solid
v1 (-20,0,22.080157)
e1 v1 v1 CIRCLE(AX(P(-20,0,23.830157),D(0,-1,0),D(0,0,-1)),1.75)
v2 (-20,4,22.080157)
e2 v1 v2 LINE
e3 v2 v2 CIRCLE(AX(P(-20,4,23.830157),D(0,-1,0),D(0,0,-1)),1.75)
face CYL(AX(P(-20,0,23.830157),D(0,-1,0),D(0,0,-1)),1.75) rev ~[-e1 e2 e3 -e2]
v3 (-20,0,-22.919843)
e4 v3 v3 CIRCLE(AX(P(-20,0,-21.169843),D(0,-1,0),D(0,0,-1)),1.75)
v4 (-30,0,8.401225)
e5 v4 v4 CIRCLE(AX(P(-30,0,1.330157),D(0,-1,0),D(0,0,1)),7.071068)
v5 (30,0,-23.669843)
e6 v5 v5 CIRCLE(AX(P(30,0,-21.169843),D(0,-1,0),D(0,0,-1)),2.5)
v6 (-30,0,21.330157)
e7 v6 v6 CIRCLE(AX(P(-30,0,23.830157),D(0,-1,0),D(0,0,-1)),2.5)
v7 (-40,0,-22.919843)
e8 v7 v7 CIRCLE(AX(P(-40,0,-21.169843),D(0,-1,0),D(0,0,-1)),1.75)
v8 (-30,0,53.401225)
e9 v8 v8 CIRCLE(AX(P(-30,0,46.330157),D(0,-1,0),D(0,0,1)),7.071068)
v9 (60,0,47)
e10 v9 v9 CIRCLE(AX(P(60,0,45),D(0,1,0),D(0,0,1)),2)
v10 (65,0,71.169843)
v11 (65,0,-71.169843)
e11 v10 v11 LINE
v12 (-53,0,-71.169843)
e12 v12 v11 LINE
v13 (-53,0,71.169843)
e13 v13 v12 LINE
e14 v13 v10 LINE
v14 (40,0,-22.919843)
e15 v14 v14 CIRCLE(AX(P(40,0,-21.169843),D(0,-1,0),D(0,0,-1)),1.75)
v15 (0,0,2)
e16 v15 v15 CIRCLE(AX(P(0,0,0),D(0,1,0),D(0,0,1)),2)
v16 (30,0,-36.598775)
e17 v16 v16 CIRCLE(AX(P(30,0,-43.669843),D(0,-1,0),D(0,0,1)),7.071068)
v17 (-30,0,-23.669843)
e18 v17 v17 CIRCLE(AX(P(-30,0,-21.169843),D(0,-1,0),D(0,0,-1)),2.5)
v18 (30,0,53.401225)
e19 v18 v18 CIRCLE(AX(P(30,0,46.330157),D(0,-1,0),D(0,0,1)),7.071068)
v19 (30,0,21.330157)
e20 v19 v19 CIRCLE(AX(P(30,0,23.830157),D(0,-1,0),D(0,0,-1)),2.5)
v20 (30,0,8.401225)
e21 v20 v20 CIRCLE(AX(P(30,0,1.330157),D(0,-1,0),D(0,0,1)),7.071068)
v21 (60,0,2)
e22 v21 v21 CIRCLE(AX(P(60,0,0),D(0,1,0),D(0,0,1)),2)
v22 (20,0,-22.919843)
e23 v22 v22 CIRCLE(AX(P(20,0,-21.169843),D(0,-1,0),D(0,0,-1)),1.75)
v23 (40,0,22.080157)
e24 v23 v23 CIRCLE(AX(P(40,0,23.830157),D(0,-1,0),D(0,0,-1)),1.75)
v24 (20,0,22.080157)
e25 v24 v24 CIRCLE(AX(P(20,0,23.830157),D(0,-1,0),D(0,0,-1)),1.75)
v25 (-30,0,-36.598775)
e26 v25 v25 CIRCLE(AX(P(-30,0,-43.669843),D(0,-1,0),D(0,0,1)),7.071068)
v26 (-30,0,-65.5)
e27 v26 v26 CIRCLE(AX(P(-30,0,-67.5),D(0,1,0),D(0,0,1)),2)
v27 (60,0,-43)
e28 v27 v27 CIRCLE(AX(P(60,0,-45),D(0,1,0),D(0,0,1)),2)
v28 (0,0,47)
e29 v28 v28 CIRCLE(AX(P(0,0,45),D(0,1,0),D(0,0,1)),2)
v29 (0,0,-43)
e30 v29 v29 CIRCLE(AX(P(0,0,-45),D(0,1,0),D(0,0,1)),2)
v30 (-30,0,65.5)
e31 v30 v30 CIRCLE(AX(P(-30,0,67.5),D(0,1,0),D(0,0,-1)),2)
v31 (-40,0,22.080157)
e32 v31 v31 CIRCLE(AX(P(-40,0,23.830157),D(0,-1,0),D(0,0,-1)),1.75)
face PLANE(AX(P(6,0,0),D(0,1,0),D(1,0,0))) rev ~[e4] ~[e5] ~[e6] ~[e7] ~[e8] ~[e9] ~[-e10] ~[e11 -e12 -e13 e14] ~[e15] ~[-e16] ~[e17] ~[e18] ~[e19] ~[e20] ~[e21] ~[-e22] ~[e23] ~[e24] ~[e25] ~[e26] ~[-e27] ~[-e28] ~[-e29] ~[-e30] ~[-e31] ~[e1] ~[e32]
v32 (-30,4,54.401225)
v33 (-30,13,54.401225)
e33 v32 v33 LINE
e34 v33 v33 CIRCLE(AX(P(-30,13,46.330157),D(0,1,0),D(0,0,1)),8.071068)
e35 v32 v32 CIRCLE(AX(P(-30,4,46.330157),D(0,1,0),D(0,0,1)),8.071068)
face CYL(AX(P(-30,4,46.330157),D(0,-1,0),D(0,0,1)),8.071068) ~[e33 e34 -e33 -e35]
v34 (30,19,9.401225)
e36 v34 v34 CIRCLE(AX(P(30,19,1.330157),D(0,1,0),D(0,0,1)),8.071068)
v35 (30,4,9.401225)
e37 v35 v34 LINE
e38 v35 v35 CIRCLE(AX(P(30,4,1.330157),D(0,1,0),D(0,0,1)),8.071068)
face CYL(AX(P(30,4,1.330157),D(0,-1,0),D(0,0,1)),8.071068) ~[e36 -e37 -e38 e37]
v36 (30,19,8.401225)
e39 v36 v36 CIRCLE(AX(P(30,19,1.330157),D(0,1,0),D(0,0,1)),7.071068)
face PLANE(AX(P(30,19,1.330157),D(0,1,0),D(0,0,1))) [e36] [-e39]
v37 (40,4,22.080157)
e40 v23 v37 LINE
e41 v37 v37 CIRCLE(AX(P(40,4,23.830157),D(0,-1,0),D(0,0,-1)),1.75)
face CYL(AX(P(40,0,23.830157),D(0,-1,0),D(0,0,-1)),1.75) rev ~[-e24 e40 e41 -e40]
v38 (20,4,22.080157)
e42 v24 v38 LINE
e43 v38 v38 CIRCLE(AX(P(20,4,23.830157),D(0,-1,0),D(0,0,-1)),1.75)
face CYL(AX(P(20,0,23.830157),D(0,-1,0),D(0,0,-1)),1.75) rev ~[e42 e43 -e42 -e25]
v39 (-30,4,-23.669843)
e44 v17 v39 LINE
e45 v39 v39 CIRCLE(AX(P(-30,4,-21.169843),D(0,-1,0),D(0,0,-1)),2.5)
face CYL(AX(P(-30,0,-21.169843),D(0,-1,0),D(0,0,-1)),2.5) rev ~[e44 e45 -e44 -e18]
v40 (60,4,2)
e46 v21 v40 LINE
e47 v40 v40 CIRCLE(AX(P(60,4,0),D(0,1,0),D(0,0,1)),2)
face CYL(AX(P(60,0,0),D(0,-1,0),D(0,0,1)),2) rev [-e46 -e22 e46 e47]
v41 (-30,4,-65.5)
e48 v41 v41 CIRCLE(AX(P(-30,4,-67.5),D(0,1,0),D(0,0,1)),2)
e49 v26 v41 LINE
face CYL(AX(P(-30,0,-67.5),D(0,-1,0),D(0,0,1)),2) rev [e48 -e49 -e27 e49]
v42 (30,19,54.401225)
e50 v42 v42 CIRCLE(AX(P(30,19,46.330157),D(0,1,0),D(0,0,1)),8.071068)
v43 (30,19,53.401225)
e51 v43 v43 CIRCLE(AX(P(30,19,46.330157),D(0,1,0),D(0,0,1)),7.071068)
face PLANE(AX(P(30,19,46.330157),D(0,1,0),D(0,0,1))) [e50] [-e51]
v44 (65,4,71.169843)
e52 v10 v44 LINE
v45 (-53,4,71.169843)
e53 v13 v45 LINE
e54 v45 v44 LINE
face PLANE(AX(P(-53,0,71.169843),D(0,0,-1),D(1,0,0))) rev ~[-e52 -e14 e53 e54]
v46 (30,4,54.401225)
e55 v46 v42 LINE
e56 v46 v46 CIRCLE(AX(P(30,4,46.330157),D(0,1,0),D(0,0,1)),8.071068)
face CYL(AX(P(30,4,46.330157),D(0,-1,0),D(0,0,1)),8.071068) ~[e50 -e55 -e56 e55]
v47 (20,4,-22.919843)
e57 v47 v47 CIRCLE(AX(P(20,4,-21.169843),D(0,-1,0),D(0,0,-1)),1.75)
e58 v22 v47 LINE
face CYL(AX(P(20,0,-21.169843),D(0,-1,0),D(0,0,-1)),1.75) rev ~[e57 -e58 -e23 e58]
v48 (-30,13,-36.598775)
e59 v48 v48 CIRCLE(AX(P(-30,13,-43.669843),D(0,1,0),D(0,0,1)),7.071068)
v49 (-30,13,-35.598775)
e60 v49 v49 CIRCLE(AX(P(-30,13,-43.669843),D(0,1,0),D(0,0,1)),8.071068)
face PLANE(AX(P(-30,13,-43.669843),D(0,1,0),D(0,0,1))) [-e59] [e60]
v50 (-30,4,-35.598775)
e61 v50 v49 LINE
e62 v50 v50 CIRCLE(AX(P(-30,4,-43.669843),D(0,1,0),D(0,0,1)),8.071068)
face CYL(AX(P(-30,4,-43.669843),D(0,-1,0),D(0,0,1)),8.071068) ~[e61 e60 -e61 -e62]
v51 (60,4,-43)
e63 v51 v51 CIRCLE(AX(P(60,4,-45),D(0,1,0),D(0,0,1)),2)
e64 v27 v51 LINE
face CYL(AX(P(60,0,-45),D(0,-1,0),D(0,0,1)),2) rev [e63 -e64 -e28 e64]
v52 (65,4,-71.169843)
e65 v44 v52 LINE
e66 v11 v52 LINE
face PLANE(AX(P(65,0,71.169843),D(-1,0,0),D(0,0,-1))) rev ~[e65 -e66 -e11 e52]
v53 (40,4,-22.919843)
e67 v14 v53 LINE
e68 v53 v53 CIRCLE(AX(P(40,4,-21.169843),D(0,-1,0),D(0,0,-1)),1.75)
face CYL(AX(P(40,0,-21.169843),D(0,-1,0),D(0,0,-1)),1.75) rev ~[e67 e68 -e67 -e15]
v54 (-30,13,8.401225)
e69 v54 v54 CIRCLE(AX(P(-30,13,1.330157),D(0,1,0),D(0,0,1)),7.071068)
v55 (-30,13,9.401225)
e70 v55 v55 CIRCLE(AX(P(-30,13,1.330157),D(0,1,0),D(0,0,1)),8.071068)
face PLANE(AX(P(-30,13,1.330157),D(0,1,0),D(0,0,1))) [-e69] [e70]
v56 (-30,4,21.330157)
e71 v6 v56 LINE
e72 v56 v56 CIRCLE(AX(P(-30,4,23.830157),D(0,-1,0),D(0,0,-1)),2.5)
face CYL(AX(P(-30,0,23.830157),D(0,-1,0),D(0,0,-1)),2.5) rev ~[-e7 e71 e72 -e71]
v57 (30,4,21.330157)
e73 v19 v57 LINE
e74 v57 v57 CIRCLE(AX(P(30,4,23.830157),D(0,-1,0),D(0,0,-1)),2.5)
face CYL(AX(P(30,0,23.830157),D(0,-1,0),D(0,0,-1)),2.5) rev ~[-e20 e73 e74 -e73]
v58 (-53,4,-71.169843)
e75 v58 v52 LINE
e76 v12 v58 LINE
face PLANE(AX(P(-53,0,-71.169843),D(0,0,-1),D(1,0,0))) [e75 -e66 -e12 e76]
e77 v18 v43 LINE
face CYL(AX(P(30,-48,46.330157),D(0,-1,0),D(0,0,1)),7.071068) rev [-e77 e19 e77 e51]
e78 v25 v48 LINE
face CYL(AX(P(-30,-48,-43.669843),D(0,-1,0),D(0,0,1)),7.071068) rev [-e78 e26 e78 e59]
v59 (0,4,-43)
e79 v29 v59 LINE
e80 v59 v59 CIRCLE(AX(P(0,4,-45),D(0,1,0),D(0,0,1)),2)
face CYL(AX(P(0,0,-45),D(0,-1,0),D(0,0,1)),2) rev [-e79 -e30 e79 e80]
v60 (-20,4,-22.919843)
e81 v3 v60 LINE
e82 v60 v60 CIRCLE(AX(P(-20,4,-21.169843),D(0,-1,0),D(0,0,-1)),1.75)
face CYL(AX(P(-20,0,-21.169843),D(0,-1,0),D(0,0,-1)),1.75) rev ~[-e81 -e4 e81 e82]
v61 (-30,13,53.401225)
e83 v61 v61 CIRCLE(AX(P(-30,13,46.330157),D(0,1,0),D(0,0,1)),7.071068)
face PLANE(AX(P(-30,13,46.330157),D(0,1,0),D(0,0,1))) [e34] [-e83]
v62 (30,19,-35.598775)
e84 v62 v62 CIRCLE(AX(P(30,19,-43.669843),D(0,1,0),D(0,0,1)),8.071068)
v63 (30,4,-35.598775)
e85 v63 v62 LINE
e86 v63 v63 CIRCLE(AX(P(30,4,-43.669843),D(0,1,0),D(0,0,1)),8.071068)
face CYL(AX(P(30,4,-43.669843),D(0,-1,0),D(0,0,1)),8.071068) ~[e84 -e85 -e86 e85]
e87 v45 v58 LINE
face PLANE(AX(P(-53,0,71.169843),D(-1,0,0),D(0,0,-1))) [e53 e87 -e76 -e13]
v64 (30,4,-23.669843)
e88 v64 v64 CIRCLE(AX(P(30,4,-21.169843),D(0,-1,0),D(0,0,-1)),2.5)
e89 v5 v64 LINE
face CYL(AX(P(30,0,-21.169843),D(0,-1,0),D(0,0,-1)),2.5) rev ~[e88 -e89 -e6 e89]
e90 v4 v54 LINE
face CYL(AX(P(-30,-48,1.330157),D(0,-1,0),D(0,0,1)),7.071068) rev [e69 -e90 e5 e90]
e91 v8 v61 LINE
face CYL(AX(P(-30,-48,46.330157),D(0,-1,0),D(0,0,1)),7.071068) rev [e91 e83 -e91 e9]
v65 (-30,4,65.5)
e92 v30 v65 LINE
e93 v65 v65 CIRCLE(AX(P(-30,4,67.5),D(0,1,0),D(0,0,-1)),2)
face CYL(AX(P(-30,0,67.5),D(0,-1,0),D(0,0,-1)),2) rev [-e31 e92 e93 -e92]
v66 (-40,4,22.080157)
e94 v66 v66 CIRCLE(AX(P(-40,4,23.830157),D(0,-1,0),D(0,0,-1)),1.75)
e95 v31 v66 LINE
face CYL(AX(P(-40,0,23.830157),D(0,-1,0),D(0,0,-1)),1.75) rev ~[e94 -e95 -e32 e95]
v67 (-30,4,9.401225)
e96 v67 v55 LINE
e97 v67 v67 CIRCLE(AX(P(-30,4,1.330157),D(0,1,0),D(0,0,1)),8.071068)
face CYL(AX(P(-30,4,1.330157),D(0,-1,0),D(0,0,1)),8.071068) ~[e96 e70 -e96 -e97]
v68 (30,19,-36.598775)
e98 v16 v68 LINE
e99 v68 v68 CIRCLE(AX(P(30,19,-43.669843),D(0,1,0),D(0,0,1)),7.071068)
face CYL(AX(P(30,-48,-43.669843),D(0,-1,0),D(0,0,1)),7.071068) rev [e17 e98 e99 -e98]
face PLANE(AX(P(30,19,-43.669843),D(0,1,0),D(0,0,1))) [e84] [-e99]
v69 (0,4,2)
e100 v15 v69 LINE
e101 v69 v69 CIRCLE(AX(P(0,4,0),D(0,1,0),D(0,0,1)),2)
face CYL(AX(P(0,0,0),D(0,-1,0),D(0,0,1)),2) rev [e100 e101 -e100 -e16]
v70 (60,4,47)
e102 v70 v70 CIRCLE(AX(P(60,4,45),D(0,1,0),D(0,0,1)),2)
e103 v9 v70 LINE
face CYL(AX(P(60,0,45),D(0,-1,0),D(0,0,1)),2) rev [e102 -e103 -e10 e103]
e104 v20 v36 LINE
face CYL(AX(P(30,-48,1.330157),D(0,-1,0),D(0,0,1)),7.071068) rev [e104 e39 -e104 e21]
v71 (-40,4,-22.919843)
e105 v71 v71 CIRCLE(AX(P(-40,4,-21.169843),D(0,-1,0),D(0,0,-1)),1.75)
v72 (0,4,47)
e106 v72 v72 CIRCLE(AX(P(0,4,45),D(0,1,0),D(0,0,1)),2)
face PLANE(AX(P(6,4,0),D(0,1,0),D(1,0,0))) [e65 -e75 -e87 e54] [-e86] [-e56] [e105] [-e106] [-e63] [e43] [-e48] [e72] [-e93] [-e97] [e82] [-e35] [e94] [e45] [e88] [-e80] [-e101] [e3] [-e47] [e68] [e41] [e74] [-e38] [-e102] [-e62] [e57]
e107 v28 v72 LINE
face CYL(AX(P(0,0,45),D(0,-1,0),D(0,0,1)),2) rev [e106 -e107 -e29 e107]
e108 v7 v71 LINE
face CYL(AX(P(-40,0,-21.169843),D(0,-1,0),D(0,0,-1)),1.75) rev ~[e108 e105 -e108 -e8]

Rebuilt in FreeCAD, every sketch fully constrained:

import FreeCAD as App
import Part
import Sketcher

V = App.Vector


def add_polygon(sketch, points):
    """Adds a closed chain of lines whose ends are joined by coincident constraints."""
    first, n = sketch.GeometryCount, len(points)
    for a, b in zip(points, points[1:] + points[:1]):
        sketch.addGeometry(Part.LineSegment(App.Vector(*a, 0), App.Vector(*b, 0)), False)
    for i in range(n):
        sketch.addConstraint(Sketcher.Constraint("Coincident", first + i, 2, first + (i + 1) % n, 1))

doc = App.newDocument("Part")
body = doc.addObject("PartDesign::Body", "Body")

# Sketch on XZ plane
sketch1 = doc.addObject("Sketcher::SketchObject", "Sketch")
body.addObject(sketch1)
sketch1.AttachmentSupport = (doc.XZ_Plane, [""])
sketch1.MapMode = "FlatFace"
add_polygon(sketch1, [(-53, -71.2), (-53, 71.2), (65, 71.2), (65, -71.2)])  # lines 0-3
sketch1.addGeometry(Part.Circle(V(-30, 67.5, 0), V(0, 0, 1), 2), False)  # 4
sketch1.addGeometry(Part.Circle(V(0, 45, 0), V(0, 0, 1), 2), False)  # 5
sketch1.addGeometry(Part.Circle(V(60, 45, 0), V(0, 0, 1), 2), False)  # 6
sketch1.addGeometry(Part.Circle(V(0, 0, 0), V(0, 0, 1), 2), False)  # 7
sketch1.addGeometry(Part.Circle(V(-30, -67.5, 0), V(0, 0, 1), 2), False)  # 8
sketch1.addGeometry(Part.Circle(V(0, -45, 0), V(0, 0, 1), 2), False)  # 9
sketch1.addGeometry(Part.Circle(V(60, 0, 0), V(0, 0, 1), 2), False)  # 10
sketch1.addGeometry(Part.Circle(V(60, -45, 0), V(0, 0, 1), 2), False)  # 11
sketch1.addConstraint([
    Sketcher.Constraint("Vertical", 0),
    Sketcher.Constraint("Horizontal", 1),
    Sketcher.Constraint("Vertical", 2),
    Sketcher.Constraint("Horizontal", 3),
    Sketcher.Constraint("Coincident", 7, 3, -1, 1),
    Sketcher.Constraint("Equal", 4, 5),
    Sketcher.Constraint("Equal", 5, 6),
    Sketcher.Constraint("Equal", 6, 7),
    Sketcher.Constraint("Equal", 7, 8),
    Sketcher.Constraint("Equal", 8, 9),
    Sketcher.Constraint("Equal", 9, 10),
    Sketcher.Constraint("Equal", 10, 11),
    Sketcher.Constraint("Symmetric", 5, 3, 9, 3, -1, 1),
    Sketcher.Constraint("Symmetric", 4, 3, 8, 3, -1),
    Sketcher.Constraint("Symmetric", 6, 3, 11, 3, -1),
    Sketcher.Constraint("PointOnObject", 5, 3, -2),
    Sketcher.Constraint("PointOnObject", 10, 3, -1),
    Sketcher.Constraint("Horizontal", 5, 3, 6, 3),
    Sketcher.Constraint("Vertical", 6, 3, 10, 3),
    Sketcher.Constraint("Diameter", 4, 4.0),
    Sketcher.Constraint("DistanceX", 1, 1, 1, 2, 118.0),
    Sketcher.Constraint("DistanceX", 4, 3, -1, 1, 30.0),
    Sketcher.Constraint("DistanceY", -1, 1, 5, 3, 45.0),
    Sketcher.Constraint("DistanceX", -1, 1, 6, 3, 60.0),
    Sketcher.Constraint("DistanceX", 0, 2, -1, 1, 53.0),
    Sketcher.Constraint("DistanceY", 8, 3, 4, 3, 135.0),
    Sketcher.Constraint("DistanceY", 0, 1, 0, 2, 142.339686),
    Sketcher.Constraint("DistanceY", -1, 1, 0, 2, 71.169843),
])
pad1 = doc.addObject("PartDesign::Pad", "Pad")
body.addObject(pad1)
pad1.Profile = sketch1
pad1.Length = 4
pad1.Reversed = True

# Sketch on XZ plane
sketch2 = doc.addObject("Sketcher::SketchObject", "Sketch001")
body.addObject(sketch2)
sketch2.AttachmentSupport = (doc.XZ_Plane, [""])
sketch2.MapMode = "FlatFace"
sketch2.AttachmentOffset = App.Placement(V(0, 0, -4), App.Rotation())
sketch2.addGeometry([
    Part.Circle(V(-30, -44, 0), V(0, 0, 1), 8),  # 0
    Part.Circle(V(-30, -44, 0), V(0, 0, 1), 7),  # 1
    Part.Circle(V(-30, 1, 0), V(0, 0, 1), 8),  # 2
    Part.Circle(V(-30, 1, 0), V(0, 0, 1), 7),  # 3
    Part.Circle(V(-30, 46, 0), V(0, 0, 1), 8),  # 4
    Part.Circle(V(-30, 46, 0), V(0, 0, 1), 7),  # 5
], False)
sketch2.addConstraint([
    Sketcher.Constraint("Coincident", 1, 3, 0, 3),
    Sketcher.Constraint("Coincident", 3, 3, 2, 3),
    Sketcher.Constraint("Coincident", 5, 3, 4, 3),
    Sketcher.Constraint("Equal", 0, 2),
    Sketcher.Constraint("Equal", 1, 3),
    Sketcher.Constraint("Equal", 2, 4),
    Sketcher.Constraint("Equal", 3, 5),
    Sketcher.Constraint("Vertical", 1, 3, 2, 3),
    Sketcher.Constraint("Vertical", 3, 3, 4, 3),
    Sketcher.Constraint("DistanceX", 0, 3, -1, 1, 30.0),
    Sketcher.Constraint("DistanceY", 0, 3, 2, 3, 45.0),
    Sketcher.Constraint("DistanceY", 2, 3, 4, 3, 45.0),
    Sketcher.Constraint("Diameter", 0, 16.142136),
    Sketcher.Constraint("Diameter", 1, 14.142136),
    Sketcher.Constraint("DistanceY", 0, 3, -1, 1, 43.669843),
])
pad2 = doc.addObject("PartDesign::Pad", "Pad001")
body.addObject(pad2)
pad2.Profile = sketch2
pad2.Length = 9
pad2.Reversed = True

# Sketch on XZ plane
sketch3 = doc.addObject("Sketcher::SketchObject", "Sketch002")
body.addObject(sketch3)
sketch3.AttachmentSupport = (doc.XZ_Plane, [""])
sketch3.MapMode = "FlatFace"
sketch3.AttachmentOffset = App.Placement(V(0, 0, -4), App.Rotation())
sketch3.addGeometry([
    Part.Circle(V(30, -44, 0), V(0, 0, 1), 8),  # 0
    Part.Circle(V(30, -44, 0), V(0, 0, 1), 7),  # 1
    Part.Circle(V(30, 1, 0), V(0, 0, 1), 8),  # 2
    Part.Circle(V(30, 1, 0), V(0, 0, 1), 7),  # 3
    Part.Circle(V(30, 46, 0), V(0, 0, 1), 8),  # 4
    Part.Circle(V(30, 46, 0), V(0, 0, 1), 7),  # 5
], False)
sketch3.addConstraint([
    Sketcher.Constraint("Coincident", 1, 3, 0, 3),
    Sketcher.Constraint("Coincident", 3, 3, 2, 3),
    Sketcher.Constraint("Coincident", 5, 3, 4, 3),
    Sketcher.Constraint("Equal", 0, 2),
    Sketcher.Constraint("Equal", 1, 3),
    Sketcher.Constraint("Equal", 2, 4),
    Sketcher.Constraint("Equal", 3, 5),
    Sketcher.Constraint("Vertical", 1, 3, 2, 3),
    Sketcher.Constraint("Vertical", 3, 3, 4, 3),
    Sketcher.Constraint("DistanceX", -1, 1, 0, 3, 30.0),
    Sketcher.Constraint("DistanceY", 0, 3, 2, 3, 45.0),
    Sketcher.Constraint("DistanceY", 2, 3, 4, 3, 45.0),
    Sketcher.Constraint("Diameter", 0, 16.142136),
    Sketcher.Constraint("Diameter", 1, 14.142136),
    Sketcher.Constraint("DistanceY", 0, 3, -1, 1, 43.669843),
])
pad3 = doc.addObject("PartDesign::Pad", "Pad002")
body.addObject(pad3)
pad3.Profile = sketch3
pad3.Length = 15
pad3.Reversed = True

# Sketch on XZ plane
sketch4 = doc.addObject("Sketcher::SketchObject", "Sketch003")
body.addObject(sketch4)
sketch4.AttachmentSupport = (doc.XZ_Plane, [""])
sketch4.MapMode = "FlatFace"
sketch4.AttachmentOffset = App.Placement(V(0, 0, 48), App.Rotation())
sketch4.addGeometry([
    Part.Circle(V(30, 46, 0), V(0, 0, 1), 7),  # 0
    Part.Circle(V(-30, 46, 0), V(0, 0, 1), 7),  # 1
    Part.Circle(V(-30, 1, 0), V(0, 0, 1), 7),  # 2
    Part.Circle(V(-30, -44, 0), V(0, 0, 1), 7),  # 3
    Part.Circle(V(30, -44, 0), V(0, 0, 1), 7),  # 4
    Part.Circle(V(30, 1, 0), V(0, 0, 1), 7),  # 5
], False)
sketch4.addConstraint([
    Sketcher.Constraint("Equal", 0, 1),
    Sketcher.Constraint("Equal", 1, 2),
    Sketcher.Constraint("Equal", 2, 3),
    Sketcher.Constraint("Equal", 3, 4),
    Sketcher.Constraint("Equal", 4, 5),
    Sketcher.Constraint("Symmetric", 0, 3, 1, 3, -2),
    Sketcher.Constraint("Symmetric", 3, 3, 4, 3, -2),
    Sketcher.Constraint("Symmetric", 2, 3, 5, 3, -2),
    Sketcher.Constraint("Vertical", 1, 3, 2, 3),
    Sketcher.Constraint("Vertical", 2, 3, 3, 3),
    Sketcher.Constraint("DistanceX", -1, 1, 0, 3, 30.0),
    Sketcher.Constraint("DistanceY", 2, 3, 1, 3, 45.0),
    Sketcher.Constraint("DistanceY", 3, 3, 2, 3, 45.0),
    Sketcher.Constraint("Diameter", 0, 14.142136),
    Sketcher.Constraint("DistanceY", -1, 1, 0, 3, 46.330157),
])
pocket1 = doc.addObject("PartDesign::Pocket", "Pocket")
body.addObject(pocket1)
pocket1.Profile = sketch4
pocket1.Length = 52

# Sketch on XZ plane
sketch5 = doc.addObject("Sketcher::SketchObject", "Sketch004")
body.addObject(sketch5)
sketch5.AttachmentSupport = (doc.XZ_Plane, [""])
sketch5.MapMode = "FlatFace"
sketch5.addGeometry([
    Part.Circle(V(40, -21.2, 0), V(0, 0, 1), 1.8),  # 0
    Part.Circle(V(20, -21.2, 0), V(0, 0, 1), 1.8),  # 1
    Part.Circle(V(30, -21.2, 0), V(0, 0, 1), 2.5),  # 2
    Part.Circle(V(-40, -21.2, 0), V(0, 0, 1), 1.8),  # 3
    Part.Circle(V(-30, -21.2, 0), V(0, 0, 1), 2.5),  # 4
    Part.Circle(V(-20, -21.2, 0), V(0, 0, 1), 1.8),  # 5
    Part.Circle(V(-40, 23.8, 0), V(0, 0, 1), 1.8),  # 6
    Part.Circle(V(-30, 23.8, 0), V(0, 0, 1), 2.5),  # 7
    Part.Circle(V(-20, 23.8, 0), V(0, 0, 1), 1.8),  # 8
    Part.Circle(V(20, 23.8, 0), V(0, 0, 1), 1.8),  # 9
    Part.Circle(V(30, 23.8, 0), V(0, 0, 1), 2.5),  # 10
    Part.Circle(V(40, 23.8, 0), V(0, 0, 1), 1.8),  # 11
], False)
sketch5.addConstraint([
    Sketcher.Constraint("Equal", 0, 1),
    Sketcher.Constraint("Equal", 1, 3),
    Sketcher.Constraint("Equal", 2, 4),
    Sketcher.Constraint("Equal", 3, 5),
    Sketcher.Constraint("Equal", 5, 6),
    Sketcher.Constraint("Equal", 4, 7),
    Sketcher.Constraint("Equal", 6, 8),
    Sketcher.Constraint("Equal", 8, 9),
    Sketcher.Constraint("Equal", 7, 10),
    Sketcher.Constraint("Equal", 9, 11),
    Sketcher.Constraint("Symmetric", 0, 3, 3, 3, -2),
    Sketcher.Constraint("Symmetric", 2, 3, 4, 3, -2),
    Sketcher.Constraint("Symmetric", 1, 3, 5, 3, -2),
    Sketcher.Constraint("Symmetric", 8, 3, 9, 3, -2),
    Sketcher.Constraint("Symmetric", 7, 3, 10, 3, -2),
    Sketcher.Constraint("Symmetric", 6, 3, 11, 3, -2),
    Sketcher.Constraint("Horizontal", 0, 3, 1, 3),
    Sketcher.Constraint("Horizontal", 1, 3, 2, 3),
    Sketcher.Constraint("Horizontal", 6, 3, 7, 3),
    Sketcher.Constraint("Horizontal", 7, 3, 8, 3),
    Sketcher.Constraint("Vertical", 3, 3, 6, 3),
    Sketcher.Constraint("Vertical", 4, 3, 7, 3),
    Sketcher.Constraint("Vertical", 5, 3, 8, 3),
    Sketcher.Constraint("Diameter", 2, 5.0),
    Sketcher.Constraint("Diameter", 0, 3.5),
    Sketcher.Constraint("DistanceX", -1, 1, 0, 3, 40.0),
    Sketcher.Constraint("DistanceX", -1, 1, 1, 3, 20.0),
    Sketcher.Constraint("DistanceX", -1, 1, 2, 3, 30.0),
    Sketcher.Constraint("DistanceY", 3, 3, 6, 3, 45.0),
    Sketcher.Constraint("DistanceY", 0, 3, -1, 1, 21.169843),
])
pocket2 = doc.addObject("PartDesign::Pocket", "Pocket001")
body.addObject(pocket2)
pocket2.Profile = sketch5
pocket2.Length = 52

doc.recompute()
